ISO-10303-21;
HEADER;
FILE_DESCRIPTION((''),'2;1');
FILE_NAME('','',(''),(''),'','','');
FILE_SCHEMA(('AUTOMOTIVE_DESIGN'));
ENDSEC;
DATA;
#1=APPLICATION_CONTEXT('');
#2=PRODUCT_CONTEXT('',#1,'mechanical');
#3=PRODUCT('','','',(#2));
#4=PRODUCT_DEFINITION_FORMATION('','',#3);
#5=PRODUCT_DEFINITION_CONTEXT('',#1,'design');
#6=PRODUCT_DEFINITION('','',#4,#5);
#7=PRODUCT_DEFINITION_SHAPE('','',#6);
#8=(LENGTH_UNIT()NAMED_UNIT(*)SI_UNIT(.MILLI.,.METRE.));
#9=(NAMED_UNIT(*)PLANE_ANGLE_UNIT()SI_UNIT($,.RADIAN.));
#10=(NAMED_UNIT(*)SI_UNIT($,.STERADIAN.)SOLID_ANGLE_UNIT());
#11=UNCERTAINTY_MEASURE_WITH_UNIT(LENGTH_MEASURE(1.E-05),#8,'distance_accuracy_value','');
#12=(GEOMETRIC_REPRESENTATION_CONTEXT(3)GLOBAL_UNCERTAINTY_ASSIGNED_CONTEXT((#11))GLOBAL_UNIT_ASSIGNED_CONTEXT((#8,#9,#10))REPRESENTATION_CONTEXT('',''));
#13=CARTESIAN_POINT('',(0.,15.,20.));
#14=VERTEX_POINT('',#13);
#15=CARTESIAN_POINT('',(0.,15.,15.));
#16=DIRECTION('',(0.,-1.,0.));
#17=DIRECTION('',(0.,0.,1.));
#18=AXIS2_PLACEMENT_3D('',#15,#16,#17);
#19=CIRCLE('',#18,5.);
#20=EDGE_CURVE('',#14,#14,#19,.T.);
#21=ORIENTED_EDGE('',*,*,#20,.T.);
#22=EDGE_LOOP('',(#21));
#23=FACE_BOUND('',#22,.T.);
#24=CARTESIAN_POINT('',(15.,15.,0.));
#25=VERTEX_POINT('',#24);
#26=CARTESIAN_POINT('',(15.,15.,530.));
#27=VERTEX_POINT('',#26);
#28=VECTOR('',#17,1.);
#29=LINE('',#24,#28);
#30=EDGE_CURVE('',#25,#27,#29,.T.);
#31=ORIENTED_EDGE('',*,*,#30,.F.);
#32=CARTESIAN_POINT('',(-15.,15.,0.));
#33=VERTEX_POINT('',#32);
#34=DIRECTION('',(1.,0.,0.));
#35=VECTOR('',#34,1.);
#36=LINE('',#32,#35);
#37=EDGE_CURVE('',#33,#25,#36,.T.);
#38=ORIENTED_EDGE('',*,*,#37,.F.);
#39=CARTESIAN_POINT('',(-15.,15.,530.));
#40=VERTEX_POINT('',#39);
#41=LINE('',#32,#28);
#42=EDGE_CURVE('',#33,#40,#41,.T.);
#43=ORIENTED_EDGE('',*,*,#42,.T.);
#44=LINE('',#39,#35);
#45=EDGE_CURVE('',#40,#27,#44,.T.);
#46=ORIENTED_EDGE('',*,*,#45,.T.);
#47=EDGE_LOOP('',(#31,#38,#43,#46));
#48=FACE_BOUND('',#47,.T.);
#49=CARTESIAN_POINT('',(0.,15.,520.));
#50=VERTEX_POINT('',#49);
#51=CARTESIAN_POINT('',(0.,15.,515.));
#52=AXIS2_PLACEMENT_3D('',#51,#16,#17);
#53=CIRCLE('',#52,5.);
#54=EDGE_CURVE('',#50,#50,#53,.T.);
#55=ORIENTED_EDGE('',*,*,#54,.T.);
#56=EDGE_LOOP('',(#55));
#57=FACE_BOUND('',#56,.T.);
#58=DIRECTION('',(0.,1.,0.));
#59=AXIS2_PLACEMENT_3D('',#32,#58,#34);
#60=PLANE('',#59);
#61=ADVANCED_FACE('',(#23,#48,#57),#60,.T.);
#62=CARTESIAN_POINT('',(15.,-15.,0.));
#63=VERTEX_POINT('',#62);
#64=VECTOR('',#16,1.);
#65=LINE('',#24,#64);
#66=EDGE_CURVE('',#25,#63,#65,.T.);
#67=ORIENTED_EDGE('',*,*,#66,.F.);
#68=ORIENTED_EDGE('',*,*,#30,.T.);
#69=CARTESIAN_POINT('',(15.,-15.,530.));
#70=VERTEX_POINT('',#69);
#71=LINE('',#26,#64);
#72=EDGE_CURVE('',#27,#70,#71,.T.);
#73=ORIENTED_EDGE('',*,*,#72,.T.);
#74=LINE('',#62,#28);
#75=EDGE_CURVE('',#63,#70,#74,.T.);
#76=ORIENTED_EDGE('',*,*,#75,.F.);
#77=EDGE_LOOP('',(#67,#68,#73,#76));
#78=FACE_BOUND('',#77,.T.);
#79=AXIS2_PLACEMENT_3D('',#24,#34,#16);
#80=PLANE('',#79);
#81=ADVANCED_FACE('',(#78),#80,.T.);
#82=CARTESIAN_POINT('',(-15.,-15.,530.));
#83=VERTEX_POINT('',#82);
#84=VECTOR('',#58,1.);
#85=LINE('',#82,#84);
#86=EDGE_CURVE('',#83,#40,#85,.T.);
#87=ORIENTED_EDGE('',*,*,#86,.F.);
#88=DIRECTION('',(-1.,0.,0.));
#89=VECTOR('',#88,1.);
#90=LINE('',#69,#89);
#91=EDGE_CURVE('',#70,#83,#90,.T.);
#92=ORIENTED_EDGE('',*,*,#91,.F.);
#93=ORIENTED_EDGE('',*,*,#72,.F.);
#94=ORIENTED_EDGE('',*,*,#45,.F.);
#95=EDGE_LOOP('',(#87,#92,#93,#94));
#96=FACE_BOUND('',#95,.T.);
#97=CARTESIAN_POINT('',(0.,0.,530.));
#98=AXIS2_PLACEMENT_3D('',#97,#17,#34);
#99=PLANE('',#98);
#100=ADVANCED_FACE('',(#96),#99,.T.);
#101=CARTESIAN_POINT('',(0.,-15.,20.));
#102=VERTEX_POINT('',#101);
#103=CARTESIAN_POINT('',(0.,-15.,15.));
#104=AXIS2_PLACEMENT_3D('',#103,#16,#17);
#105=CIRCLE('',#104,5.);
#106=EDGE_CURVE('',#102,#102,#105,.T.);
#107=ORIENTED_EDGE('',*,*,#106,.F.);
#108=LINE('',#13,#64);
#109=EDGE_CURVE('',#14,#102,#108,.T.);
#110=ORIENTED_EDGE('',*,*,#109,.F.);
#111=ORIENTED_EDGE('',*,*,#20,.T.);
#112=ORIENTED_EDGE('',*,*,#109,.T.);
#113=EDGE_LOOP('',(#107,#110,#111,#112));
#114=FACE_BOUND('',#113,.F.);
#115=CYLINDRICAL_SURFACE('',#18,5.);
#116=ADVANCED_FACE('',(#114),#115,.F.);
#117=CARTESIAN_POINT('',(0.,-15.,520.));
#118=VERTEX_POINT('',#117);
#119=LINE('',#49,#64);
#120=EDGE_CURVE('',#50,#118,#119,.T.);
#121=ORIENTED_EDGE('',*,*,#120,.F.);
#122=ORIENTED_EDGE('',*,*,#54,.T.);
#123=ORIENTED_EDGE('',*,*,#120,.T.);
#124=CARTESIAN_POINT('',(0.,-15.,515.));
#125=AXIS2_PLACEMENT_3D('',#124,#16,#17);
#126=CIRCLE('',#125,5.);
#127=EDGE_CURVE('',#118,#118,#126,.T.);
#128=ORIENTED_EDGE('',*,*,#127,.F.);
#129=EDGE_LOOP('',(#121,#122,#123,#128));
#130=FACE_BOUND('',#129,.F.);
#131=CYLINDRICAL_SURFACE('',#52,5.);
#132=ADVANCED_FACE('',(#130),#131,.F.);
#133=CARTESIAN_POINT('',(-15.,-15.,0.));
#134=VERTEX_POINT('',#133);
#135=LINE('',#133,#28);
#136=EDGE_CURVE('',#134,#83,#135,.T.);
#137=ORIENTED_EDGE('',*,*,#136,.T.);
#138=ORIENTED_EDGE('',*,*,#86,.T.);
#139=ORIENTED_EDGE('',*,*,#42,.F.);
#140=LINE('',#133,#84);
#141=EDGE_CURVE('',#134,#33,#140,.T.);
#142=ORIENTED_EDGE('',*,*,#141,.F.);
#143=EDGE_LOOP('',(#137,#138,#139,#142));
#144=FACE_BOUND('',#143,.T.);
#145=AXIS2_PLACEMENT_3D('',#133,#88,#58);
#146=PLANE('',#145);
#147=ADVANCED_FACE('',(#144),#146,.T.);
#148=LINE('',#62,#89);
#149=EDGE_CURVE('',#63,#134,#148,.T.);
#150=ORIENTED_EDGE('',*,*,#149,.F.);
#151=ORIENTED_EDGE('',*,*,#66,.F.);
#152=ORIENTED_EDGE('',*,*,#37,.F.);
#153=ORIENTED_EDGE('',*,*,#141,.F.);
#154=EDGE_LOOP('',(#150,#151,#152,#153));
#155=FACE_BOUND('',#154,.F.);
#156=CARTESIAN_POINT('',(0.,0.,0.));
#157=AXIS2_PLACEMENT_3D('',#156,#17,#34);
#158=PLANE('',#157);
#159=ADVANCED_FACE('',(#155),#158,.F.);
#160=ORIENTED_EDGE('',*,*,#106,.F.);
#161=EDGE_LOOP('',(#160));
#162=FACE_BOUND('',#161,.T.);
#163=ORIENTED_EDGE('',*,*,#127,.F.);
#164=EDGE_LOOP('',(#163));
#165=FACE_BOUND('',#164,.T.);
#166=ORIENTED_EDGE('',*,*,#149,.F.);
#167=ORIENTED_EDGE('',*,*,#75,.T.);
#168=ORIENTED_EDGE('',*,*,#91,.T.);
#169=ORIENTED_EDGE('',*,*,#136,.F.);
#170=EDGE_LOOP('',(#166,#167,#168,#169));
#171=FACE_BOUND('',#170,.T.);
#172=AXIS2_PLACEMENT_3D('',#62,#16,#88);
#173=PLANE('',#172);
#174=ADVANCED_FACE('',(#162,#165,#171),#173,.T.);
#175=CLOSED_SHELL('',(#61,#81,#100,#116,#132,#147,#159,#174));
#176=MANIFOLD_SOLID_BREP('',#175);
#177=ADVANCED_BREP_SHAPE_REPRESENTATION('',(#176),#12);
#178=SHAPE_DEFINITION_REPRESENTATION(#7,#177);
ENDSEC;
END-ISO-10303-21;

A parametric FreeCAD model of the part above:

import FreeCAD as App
import Part
import Sketcher

doc = App.newDocument("Part")
body = doc.addObject("PartDesign::Body", "Body")

# Sketch on XY plane
sketch1 = body.newObject("Sketcher::SketchObject", "Sketch")
sketch1.AttachmentSupport = (doc.getObject("XY_Plane"), [""])
sketch1.MapMode = "FlatFace"
sketch1.addGeometry([
    Part.LineSegment(App.Vector(15, 15, 0), App.Vector(-15, 15, 0)),
    Part.LineSegment(App.Vector(-15, 15, 0), App.Vector(-15, -15, 0)),
    Part.LineSegment(App.Vector(-15, -15, 0), App.Vector(15, -15, 0)),
    Part.LineSegment(App.Vector(15, -15, 0), App.Vector(15, 15, 0)),
], False)
sketch1.addConstraint([
    Sketcher.Constraint("Coincident", 0, 2, 1, 1),
    Sketcher.Constraint("Coincident", 1, 2, 2, 1),
    Sketcher.Constraint("Coincident", 2, 2, 3, 1),
    Sketcher.Constraint("Coincident", 3, 2, 0, 1),
    Sketcher.Constraint("Horizontal", 0),
    Sketcher.Constraint("Vertical", 1),
    Sketcher.Constraint("Horizontal", 2),
    Sketcher.Constraint("Vertical", 3),
    Sketcher.Constraint("Symmetric", 0, 2, 2, 2, -1, 1),
    Sketcher.Constraint("Equal", 2, 1),
    Sketcher.Constraint("DistanceX", 0, 2, 0, 1, 30.0),
])
pad1 = body.newObject("PartDesign::Pad", "Pad")
pad1.Profile = sketch1
pad1.Length = 530

# Sketch on XZ plane
sketch2 = body.newObject("Sketcher::SketchObject", "Sketch001")
sketch2.AttachmentSupport = (doc.getObject("XZ_Plane"), [""])
sketch2.MapMode = "FlatFace"
sketch2.AttachmentOffset = App.Placement(App.Vector(0, 0, -15), App.Rotation())
sketch2.addGeometry([
    Part.Circle(App.Vector(0, 515, 0), App.Vector(0, 0, 1), 5),
    Part.Circle(App.Vector(0, 15, 0), App.Vector(0, 0, 1), 5),
], False)
sketch2.addConstraint([
    Sketcher.Constraint("Equal", 0, 1),
    Sketcher.Constraint("PointOnObject", 0, 3, -2),
    Sketcher.Constraint("PointOnObject", 1, 3, -2),
    Sketcher.Constraint("Diameter", 0, 10.0),
    Sketcher.Constraint("DistanceY", -1, 1, 0, 3, 515.0),
    Sketcher.Constraint("DistanceY", -1, 1, 1, 3, 15.0),
])
doc.recompute()
hole = body.newObject("PartDesign::Hole", "Hole")
hole.Profile = sketch2
hole.ThreadType = "None"
hole.Diameter = 10
hole.DepthType = "ThroughAll"
hole.Reversed = True

doc.recompute()
